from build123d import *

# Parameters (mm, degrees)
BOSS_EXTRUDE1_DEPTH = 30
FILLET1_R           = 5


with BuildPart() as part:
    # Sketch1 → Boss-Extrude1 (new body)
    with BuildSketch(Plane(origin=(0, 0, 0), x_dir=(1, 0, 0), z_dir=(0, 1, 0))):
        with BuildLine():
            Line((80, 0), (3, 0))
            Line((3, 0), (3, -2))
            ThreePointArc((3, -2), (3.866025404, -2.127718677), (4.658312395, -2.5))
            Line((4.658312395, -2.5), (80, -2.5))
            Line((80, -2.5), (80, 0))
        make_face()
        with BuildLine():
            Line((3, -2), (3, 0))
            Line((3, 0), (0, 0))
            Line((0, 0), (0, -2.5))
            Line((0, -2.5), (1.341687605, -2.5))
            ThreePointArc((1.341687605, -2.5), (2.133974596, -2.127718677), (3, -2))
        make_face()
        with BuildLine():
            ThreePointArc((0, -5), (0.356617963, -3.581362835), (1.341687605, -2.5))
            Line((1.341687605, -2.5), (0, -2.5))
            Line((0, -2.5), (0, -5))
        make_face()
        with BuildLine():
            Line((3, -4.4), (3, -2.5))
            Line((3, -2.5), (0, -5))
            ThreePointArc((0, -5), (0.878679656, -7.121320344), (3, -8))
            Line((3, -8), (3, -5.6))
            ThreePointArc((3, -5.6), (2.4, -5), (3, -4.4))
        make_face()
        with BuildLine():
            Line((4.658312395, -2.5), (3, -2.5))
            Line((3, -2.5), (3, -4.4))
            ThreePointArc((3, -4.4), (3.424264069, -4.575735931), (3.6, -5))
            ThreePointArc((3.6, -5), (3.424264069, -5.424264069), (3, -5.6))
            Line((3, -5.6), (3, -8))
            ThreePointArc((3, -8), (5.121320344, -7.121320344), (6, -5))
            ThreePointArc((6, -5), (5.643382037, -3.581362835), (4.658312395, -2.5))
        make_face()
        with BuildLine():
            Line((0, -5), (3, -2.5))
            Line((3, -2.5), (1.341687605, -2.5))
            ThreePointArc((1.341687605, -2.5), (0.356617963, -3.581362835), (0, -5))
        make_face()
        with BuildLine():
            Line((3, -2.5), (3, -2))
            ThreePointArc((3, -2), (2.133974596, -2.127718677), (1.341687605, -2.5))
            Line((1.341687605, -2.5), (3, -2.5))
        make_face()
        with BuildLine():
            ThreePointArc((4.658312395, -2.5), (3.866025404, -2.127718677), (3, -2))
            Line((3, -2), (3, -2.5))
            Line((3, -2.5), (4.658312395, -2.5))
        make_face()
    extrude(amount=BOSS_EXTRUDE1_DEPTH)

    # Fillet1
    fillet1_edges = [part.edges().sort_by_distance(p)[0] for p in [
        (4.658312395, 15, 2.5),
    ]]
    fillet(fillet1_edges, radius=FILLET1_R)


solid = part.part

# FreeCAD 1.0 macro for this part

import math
import FreeCAD as App
import Part
import Sketcher
from FreeCAD import Vector
Q = App.Units.Quantity


def edges_at(feature, points):
    """Names of the edges that pass closest to the given points."""
    edges = feature.Shape.Edges
    near = lambda p: min(range(len(edges)), key=lambda i: edges[i].distToShape(Part.Vertex(*p))[0])
    return sorted({f"Edge{near(p) + 1}" for p in points})

doc = App.newDocument("Part")
body = doc.addObject("PartDesign::Body", "Body")

# Sketch on XZ plane
sketch1 = body.newObject("Sketcher::SketchObject", "Sketch")
sketch1.AttachmentSupport = (doc.getObject("XZ_Plane"), [""])
sketch1.MapMode = "FlatFace"
sketch1.addGeometry([
    Part.ArcOfCircle(Part.Circle(Vector(3, 5, 0), Vector(0, 0, 1), 3), math.radians(-56), math.radians(0)),  # 0
    Part.LineSegment(Vector(4.7, 2.5, 0), Vector(80, 2.5, 0)),  # 1
    Part.LineSegment(Vector(80, 2.5, 0), Vector(80, 0, 0)),  # 2
    Part.LineSegment(Vector(80, 0, 0), Vector(0, 0, 0)),  # 3
    Part.LineSegment(Vector(0, 0, 0), Vector(0, 5, 0)),  # 4
    Part.ArcOfCircle(Part.Circle(Vector(3, 5, 0), Vector(0, 0, 1), 3), math.radians(90), math.radians(180)),  # 5
    Part.ArcOfCircle(Part.Circle(Vector(3, 5, 0), Vector(0, 0, 1), 3), math.radians(0), math.radians(90)),  # 6
    Part.ArcOfCircle(Part.Circle(Vector(3, 5, 0), Vector(0, 0, 1), 0.6), math.radians(0), math.radians(90)),  # 7
    Part.ArcOfCircle(Part.Circle(Vector(3, 5, 0), Vector(0, 0, 1), 0.6), math.radians(90), math.radians(270)),  # 8
    Part.ArcOfCircle(Part.Circle(Vector(3, 5, 0), Vector(0, 0, 1), 0.6), math.radians(-90), math.radians(0)),  # 9
], False)
sketch1.addConstraint([
    Sketcher.Constraint("Coincident", 0, 1, 1, 1),
    Sketcher.Constraint("Coincident", 1, 2, 2, 1),
    Sketcher.Constraint("Coincident", 2, 2, 3, 1),
    Sketcher.Constraint("Coincident", 3, 2, 4, 1),
    Sketcher.Constraint("Tangent", 4, 2, 5, 2),
    Sketcher.Constraint("Tangent", 5, 1, 6, 2),
    Sketcher.Constraint("Tangent", 6, 1, 0, 2),
    Sketcher.Constraint("Tangent", 7, 2, 8, 1),
    Sketcher.Constraint("Tangent", 8, 2, 9, 1),
    Sketcher.Constraint("Tangent", 9, 2, 7, 1),
    Sketcher.Constraint("Horizontal", 1),
    Sketcher.Constraint("Vertical", 2),
    Sketcher.Constraint("Horizontal", 3),
    Sketcher.Constraint("Vertical", 4),
    Sketcher.Constraint("Coincident", 3, 2, -1, 1),
    Sketcher.Constraint("Coincident", 5, 3, 0, 3),
    Sketcher.Constraint("Coincident", 7, 3, 0, 3),
    Sketcher.Constraint("Horizontal", 4, 2, 6, 1),
    Sketcher.Constraint("Horizontal", 6, 1, 9, 2),
    Sketcher.Constraint("Vertical", 9, 3, 5, 1),
    Sketcher.Constraint("Vertical", 5, 1, 7, 2),
    Sketcher.Constraint("Vertical", 7, 2, 8, 2),
    Sketcher.Constraint("Radius", 0, Q("3 mm")),
    Sketcher.Constraint("Radius", 7, Q("0.6 mm")),
    Sketcher.Constraint("DistanceX", 3, 2, 3, 1, Q("80 mm")),
    Sketcher.Constraint("DistanceY", 4, 1, 4, 2, Q("5 mm")),
    Sketcher.Constraint("DistanceY", 2, 2, 2, 1, Q("2.5 mm")),
])
pad1 = body.newObject("PartDesign::Pad", "Pad")
pad1.Profile = sketch1
pad1.Length = 30
pad1.Reversed = True
doc.recompute()

fillet = body.newObject("PartDesign::Fillet", "Fillet")
fillet.Base = (pad1, edges_at(pad1, [(4.658, 15, 2.5)]))
fillet.Radius = 5

doc.recompute()
